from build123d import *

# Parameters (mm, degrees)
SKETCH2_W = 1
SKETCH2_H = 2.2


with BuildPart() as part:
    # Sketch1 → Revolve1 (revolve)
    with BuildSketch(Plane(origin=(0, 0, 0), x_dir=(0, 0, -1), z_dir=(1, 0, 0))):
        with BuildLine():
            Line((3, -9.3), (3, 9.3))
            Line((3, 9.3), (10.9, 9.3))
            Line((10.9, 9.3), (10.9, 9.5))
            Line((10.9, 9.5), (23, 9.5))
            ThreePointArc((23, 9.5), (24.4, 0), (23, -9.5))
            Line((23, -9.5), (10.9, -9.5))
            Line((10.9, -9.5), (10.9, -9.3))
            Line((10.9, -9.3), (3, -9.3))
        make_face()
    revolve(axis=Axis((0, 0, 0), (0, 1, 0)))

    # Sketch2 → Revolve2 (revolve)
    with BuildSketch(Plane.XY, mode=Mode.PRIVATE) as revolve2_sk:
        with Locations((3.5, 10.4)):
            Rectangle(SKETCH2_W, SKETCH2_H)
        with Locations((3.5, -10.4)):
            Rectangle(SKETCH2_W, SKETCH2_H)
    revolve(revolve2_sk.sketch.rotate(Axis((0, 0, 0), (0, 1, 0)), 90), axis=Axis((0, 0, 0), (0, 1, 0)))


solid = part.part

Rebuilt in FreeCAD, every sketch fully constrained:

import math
import FreeCAD as App
import Part
import Sketcher
from FreeCAD import Vector

doc = App.newDocument("Part")
body = doc.addObject("PartDesign::Body", "Body")

# Sketch on YZ plane
sketch1 = doc.addObject("Sketcher::SketchObject", "Sketch")
body.addObject(sketch1)
sketch1.AttachmentSupport = (doc.YZ_Plane, [""])
sketch1.MapMode = "FlatFace"
sketch1.addGeometry([
    Part.LineSegment(Vector(9.3, -3, 0), Vector(-9.3, -3, 0)),  # 0
    Part.LineSegment(Vector(-9.3, -3, 0), Vector(-9.3, -10.9, 0)),  # 1
    Part.LineSegment(Vector(-9.3, -10.9, 0), Vector(-9.5, -10.9, 0)),  # 2
    Part.LineSegment(Vector(-9.5, -10.9, 0), Vector(-9.5, -23, 0)),  # 3
    Part.ArcOfCircle(Part.Circle(Vector(0, 8.53, 0), Vector(0, 0, 1), 32.93), math.radians(-107), math.radians(-73)),  # 4
    Part.LineSegment(Vector(9.5, -23, 0), Vector(9.5, -10.9, 0)),  # 5
    Part.LineSegment(Vector(9.5, -10.9, 0), Vector(9.3, -10.9, 0)),  # 6
    Part.LineSegment(Vector(9.3, -10.9, 0), Vector(9.3, -3, 0)),  # 7
], False)
sketch1.addConstraint([
    Sketcher.Constraint("Coincident", 0, 2, 1, 1),
    Sketcher.Constraint("Coincident", 1, 2, 2, 1),
    Sketcher.Constraint("Coincident", 2, 2, 3, 1),
    Sketcher.Constraint("Coincident", 3, 2, 4, 1),
    Sketcher.Constraint("Coincident", 4, 2, 5, 1),
    Sketcher.Constraint("Coincident", 5, 2, 6, 1),
    Sketcher.Constraint("Coincident", 6, 2, 7, 1),
    Sketcher.Constraint("Coincident", 7, 2, 0, 1),
    Sketcher.Constraint("Horizontal", 0),
    Sketcher.Constraint("Vertical", 1),
    Sketcher.Constraint("Horizontal", 2),
    Sketcher.Constraint("Vertical", 3),
    Sketcher.Constraint("Vertical", 5),
    Sketcher.Constraint("Horizontal", 6),
    Sketcher.Constraint("Vertical", 7),
    Sketcher.Constraint("Symmetric", 3, 2, 4, 2, -2),
    Sketcher.Constraint("Symmetric", 1, 2, 6, 2, -2),
    Sketcher.Constraint("DistanceX", 0, 2, 0, 1, 18.6),
    Sketcher.Constraint("DistanceX", 2, 2, 2, 1, 0.2),
    Sketcher.Constraint("DistanceY", 1, 2, 1, 1, 7.9),
    Sketcher.Constraint("DistanceY", 3, 2, 3, 1, 12.1),
    Sketcher.Constraint("DistanceY", 0, 2, -1, 1, 3.0),
    Sketcher.Constraint("Radius", 4, 32.932143),
])
revolution = doc.addObject("PartDesign::Revolution", "Revolution")
body.addObject(revolution)
revolution.Profile = sketch1
revolution.ReferenceAxis = (sketch1, ["H_Axis"])
revolution.Angle = 360

# Sketch on XY plane
sketch2 = doc.addObject("Sketcher::SketchObject", "Sketch001")
body.addObject(sketch2)
sketch2.AttachmentSupport = (doc.XY_Plane, [""])
sketch2.MapMode = "FlatFace"
sketch2.addGeometry([
    Part.LineSegment(Vector(3, 11.5, 0), Vector(3, 9.3, 0)),  # 0
    Part.LineSegment(Vector(3, 9.3, 0), Vector(4, 9.3, 0)),  # 1
    Part.LineSegment(Vector(4, 9.3, 0), Vector(4, 11.5, 0)),  # 2
    Part.LineSegment(Vector(4, 11.5, 0), Vector(3, 11.5, 0)),  # 3
    Part.LineSegment(Vector(3, -9.3, 0), Vector(3, -11.5, 0)),  # 4
    Part.LineSegment(Vector(3, -11.5, 0), Vector(4, -11.5, 0)),  # 5
    Part.LineSegment(Vector(4, -11.5, 0), Vector(4, -9.3, 0)),  # 6
    Part.LineSegment(Vector(4, -9.3, 0), Vector(3, -9.3, 0)),  # 7
], False)
sketch2.addConstraint([
    Sketcher.Constraint("Coincident", 0, 2, 1, 1),
    Sketcher.Constraint("Coincident", 1, 2, 2, 1),
    Sketcher.Constraint("Coincident", 2, 2, 3, 1),
    Sketcher.Constraint("Coincident", 3, 2, 0, 1),
    Sketcher.Constraint("Coincident", 4, 2, 5, 1),
    Sketcher.Constraint("Coincident", 5, 2, 6, 1),
    Sketcher.Constraint("Coincident", 6, 2, 7, 1),
    Sketcher.Constraint("Coincident", 7, 2, 4, 1),
    Sketcher.Constraint("Vertical", 0),
    Sketcher.Constraint("Horizontal", 1),
    Sketcher.Constraint("Vertical", 2),
    Sketcher.Constraint("Horizontal", 3),
    Sketcher.Constraint("Vertical", 4),
    Sketcher.Constraint("Horizontal", 5),
    Sketcher.Constraint("Vertical", 6),
    Sketcher.Constraint("Horizontal", 7),
    Sketcher.Constraint("Symmetric", 3, 2, 4, 2, -1),
    Sketcher.Constraint("Symmetric", 1, 2, 6, 2, -1),
    Sketcher.Constraint("DistanceX", 1, 1, 1, 2, 1.0),
    Sketcher.Constraint("DistanceY", 0, 2, 0, 1, 2.2),
    Sketcher.Constraint("DistanceX", -1, 1, 0, 2, 3.0),
    Sketcher.Constraint("DistanceY", 4, 2, 3, 2, 23.0),
])
revolution2 = doc.addObject("PartDesign::Revolution", "Revolution001")
body.addObject(revolution2)
revolution2.Profile = sketch2
revolution2.ReferenceAxis = (sketch2, ["V_Axis"])
revolution2.Angle = 360

doc.recompute()
